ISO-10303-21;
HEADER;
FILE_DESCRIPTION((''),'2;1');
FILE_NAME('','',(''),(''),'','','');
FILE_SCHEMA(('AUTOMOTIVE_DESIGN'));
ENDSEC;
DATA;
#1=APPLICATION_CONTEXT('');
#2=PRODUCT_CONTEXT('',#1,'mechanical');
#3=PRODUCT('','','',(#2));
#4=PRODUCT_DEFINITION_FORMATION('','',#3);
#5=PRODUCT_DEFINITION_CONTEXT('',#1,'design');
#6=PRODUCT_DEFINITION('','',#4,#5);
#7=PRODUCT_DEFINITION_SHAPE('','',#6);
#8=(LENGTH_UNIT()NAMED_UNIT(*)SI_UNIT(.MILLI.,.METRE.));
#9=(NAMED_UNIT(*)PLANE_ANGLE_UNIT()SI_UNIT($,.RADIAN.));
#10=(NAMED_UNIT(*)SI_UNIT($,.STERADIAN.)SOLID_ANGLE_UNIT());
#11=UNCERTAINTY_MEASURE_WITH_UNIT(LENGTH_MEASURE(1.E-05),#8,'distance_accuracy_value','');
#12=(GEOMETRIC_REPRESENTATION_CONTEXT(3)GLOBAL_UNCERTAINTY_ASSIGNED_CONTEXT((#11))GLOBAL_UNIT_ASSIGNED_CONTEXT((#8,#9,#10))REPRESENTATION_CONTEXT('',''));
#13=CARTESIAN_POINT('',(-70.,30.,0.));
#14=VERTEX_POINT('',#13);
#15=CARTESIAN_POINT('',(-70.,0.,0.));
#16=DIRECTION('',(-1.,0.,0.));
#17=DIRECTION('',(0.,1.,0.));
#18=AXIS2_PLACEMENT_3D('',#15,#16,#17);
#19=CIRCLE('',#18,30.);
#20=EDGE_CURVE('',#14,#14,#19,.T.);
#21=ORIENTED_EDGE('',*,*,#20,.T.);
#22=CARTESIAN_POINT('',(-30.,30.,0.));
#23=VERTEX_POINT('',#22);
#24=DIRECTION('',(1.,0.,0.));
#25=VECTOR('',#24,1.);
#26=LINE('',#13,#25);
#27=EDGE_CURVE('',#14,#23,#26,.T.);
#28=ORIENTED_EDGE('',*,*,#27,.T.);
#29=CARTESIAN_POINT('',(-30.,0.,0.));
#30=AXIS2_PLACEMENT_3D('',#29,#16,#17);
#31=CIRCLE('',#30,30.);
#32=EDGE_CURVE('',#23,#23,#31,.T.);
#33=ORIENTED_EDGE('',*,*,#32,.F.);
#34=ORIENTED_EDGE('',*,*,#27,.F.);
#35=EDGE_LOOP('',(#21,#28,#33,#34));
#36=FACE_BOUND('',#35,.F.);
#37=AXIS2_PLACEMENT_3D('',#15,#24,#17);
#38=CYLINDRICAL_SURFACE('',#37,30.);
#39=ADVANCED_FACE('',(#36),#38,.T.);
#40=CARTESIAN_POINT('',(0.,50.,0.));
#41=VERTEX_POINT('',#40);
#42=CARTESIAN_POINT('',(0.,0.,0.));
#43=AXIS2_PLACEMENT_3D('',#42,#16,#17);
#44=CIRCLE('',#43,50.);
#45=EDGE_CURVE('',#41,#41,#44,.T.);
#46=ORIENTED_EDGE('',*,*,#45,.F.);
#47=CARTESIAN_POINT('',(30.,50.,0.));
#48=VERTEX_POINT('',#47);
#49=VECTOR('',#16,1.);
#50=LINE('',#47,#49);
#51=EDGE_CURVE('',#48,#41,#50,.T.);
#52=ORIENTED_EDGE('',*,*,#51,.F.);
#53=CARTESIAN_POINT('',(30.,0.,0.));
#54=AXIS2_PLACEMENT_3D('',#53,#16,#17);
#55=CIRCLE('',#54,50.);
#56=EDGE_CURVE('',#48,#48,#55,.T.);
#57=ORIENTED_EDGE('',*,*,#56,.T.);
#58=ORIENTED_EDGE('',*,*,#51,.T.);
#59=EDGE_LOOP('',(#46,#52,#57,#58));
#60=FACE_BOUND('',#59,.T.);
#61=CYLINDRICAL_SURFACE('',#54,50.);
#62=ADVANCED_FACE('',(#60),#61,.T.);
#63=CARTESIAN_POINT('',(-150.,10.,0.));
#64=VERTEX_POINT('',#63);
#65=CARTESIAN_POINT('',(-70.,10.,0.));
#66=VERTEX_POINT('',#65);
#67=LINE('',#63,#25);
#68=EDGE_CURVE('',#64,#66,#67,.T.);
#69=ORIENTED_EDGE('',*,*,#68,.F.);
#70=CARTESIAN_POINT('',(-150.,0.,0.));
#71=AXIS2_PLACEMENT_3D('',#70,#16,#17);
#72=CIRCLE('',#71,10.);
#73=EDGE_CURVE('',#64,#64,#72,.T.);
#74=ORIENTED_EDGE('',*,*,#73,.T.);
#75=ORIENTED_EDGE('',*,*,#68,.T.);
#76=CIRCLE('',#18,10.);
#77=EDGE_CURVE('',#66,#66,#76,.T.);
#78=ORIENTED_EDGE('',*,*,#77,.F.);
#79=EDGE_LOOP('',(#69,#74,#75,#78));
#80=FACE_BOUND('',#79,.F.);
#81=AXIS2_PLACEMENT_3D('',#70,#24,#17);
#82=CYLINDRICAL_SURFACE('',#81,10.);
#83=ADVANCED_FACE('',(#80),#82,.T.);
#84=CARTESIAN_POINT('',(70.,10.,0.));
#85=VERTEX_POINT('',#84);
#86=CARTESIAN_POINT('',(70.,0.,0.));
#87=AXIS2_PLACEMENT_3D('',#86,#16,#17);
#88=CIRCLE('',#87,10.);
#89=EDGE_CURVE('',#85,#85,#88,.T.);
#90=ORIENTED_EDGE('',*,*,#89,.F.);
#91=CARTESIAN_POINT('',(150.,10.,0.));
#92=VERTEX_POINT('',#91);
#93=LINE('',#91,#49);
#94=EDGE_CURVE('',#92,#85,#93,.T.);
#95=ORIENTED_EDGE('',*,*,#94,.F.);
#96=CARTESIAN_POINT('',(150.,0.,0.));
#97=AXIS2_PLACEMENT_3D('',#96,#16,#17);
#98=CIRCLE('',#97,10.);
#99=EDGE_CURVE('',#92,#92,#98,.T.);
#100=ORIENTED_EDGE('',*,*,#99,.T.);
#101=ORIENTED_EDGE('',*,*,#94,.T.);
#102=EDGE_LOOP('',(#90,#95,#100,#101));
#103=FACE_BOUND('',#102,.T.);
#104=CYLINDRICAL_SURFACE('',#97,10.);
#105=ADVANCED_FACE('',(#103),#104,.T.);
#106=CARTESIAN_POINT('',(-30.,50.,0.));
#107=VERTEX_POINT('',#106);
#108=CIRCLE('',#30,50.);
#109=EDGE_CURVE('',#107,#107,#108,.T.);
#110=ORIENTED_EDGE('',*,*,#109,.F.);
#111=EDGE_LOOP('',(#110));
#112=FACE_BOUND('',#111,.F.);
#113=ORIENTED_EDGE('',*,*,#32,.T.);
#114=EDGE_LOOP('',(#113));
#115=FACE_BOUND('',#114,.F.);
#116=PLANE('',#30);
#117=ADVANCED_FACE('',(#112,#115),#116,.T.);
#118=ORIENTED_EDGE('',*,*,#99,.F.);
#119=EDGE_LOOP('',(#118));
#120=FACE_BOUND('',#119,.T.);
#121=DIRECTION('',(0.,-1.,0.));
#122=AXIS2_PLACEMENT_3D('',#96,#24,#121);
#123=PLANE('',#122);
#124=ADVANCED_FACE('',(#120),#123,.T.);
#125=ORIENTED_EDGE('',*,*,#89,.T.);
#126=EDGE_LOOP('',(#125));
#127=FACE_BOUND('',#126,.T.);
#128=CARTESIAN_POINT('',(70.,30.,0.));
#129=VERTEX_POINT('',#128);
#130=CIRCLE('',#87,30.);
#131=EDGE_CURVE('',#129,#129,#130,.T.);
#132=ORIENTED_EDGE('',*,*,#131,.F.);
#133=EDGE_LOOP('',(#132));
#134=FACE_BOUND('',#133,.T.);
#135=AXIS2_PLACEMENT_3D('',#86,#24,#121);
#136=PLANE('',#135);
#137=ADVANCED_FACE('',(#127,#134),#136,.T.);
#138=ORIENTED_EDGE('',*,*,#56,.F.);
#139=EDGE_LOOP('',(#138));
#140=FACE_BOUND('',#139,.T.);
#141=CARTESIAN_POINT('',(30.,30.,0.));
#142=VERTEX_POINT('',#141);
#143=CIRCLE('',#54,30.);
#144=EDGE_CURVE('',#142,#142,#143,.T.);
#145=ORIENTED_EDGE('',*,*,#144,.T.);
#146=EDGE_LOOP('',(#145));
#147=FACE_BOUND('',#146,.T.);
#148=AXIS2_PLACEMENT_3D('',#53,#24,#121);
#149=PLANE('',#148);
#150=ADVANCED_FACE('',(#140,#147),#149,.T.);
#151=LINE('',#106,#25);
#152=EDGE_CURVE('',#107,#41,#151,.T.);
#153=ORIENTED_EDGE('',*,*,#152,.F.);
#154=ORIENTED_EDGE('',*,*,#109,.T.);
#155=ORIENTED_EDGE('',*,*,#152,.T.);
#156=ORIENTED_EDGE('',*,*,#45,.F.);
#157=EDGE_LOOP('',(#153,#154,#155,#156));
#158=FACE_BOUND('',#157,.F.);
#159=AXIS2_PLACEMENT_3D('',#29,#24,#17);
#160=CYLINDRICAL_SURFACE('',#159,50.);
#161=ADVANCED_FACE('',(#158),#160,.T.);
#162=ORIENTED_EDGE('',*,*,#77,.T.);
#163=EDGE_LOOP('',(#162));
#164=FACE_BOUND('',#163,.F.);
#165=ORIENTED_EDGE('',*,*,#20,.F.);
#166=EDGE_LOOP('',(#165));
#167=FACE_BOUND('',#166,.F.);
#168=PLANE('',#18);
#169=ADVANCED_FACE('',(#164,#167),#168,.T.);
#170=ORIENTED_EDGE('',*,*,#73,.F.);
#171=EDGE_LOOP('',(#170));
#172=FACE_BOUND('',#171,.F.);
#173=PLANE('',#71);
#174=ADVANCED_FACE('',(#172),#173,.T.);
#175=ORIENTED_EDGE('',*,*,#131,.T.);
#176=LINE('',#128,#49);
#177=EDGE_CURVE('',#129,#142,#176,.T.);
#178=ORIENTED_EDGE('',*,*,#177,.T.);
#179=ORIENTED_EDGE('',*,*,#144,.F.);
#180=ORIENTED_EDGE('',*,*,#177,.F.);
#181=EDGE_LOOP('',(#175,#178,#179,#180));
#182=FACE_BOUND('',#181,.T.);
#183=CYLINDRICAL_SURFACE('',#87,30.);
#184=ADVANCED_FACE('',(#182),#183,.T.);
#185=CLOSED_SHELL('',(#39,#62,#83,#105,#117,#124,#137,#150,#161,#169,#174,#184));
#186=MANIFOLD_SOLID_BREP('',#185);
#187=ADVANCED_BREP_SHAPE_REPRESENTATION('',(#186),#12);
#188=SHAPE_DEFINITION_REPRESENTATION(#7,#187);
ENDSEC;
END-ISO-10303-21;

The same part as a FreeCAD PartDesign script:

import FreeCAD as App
import Part
import Sketcher
from FreeCAD import Vector


def add_polygon(sketch, points):
    """Adds a closed chain of lines whose ends are joined by coincident constraints."""
    first, n = sketch.GeometryCount, len(points)
    for a, b in zip(points, points[1:] + points[:1]):
        sketch.addGeometry(Part.LineSegment(App.Vector(*a, 0), App.Vector(*b, 0)), False)
    for i in range(n):
        sketch.addConstraint(Sketcher.Constraint("Coincident", first + i, 2, first + (i + 1) % n, 1))

doc = App.newDocument("Part")
body = doc.addObject("PartDesign::Body", "Body")

# Sketch on XY plane
sketch1 = doc.addObject("Sketcher::SketchObject", "Sketch")
body.addObject(sketch1)
sketch1.AttachmentSupport = (doc.XY_Plane, [""])
sketch1.MapMode = "FlatFace"
add_polygon(sketch1, [(0, 0), (0, 50), (-30, 50), (-30, 30), (-70, 30), (-70, 10), (-150, 10), (-150, 0)])  # lines 0-7
sketch1.addConstraint(Sketcher.Constraint("Vertical", 0))
sketch1.addConstraint(Sketcher.Constraint("Horizontal", 1))
sketch1.addConstraint(Sketcher.Constraint("Vertical", 2))
sketch1.addConstraint(Sketcher.Constraint("Horizontal", 3))
sketch1.addConstraint(Sketcher.Constraint("Vertical", 4))
sketch1.addConstraint(Sketcher.Constraint("Horizontal", 5))
sketch1.addConstraint(Sketcher.Constraint("Vertical", 6))
sketch1.addConstraint(Sketcher.Constraint("Horizontal", 7))
sketch1.addConstraint(Sketcher.Constraint("Coincident", 7, 2, -1, 1))
sketch1.addConstraint(Sketcher.Constraint("Equal", 2, 4))
sketch1.addConstraint(Sketcher.Constraint("DistanceX", 1, 2, 1, 1, 30.0))
sketch1.addConstraint(Sketcher.Constraint("DistanceX", 3, 2, 3, 1, 40.0))
sketch1.addConstraint(Sketcher.Constraint("DistanceX", 5, 2, 5, 1, 80.0))
sketch1.addConstraint(Sketcher.Constraint("DistanceY", 0, 1, 0, 2, 50.0))
sketch1.addConstraint(Sketcher.Constraint("DistanceY", 6, 2, 6, 1, 10.0))
revolution = doc.addObject("PartDesign::Revolution", "Revolution")
body.addObject(revolution)
revolution.Profile = sketch1
revolution.ReferenceAxis = (sketch1, ["H_Axis"])
revolution.Angle = 360
doc.recompute()

mirrored = doc.addObject("PartDesign::Mirrored", "Mirrored")
body.addObject(mirrored)
mirrored.Originals = [revolution]
mirrored.MirrorPlane = (doc.YZ_Plane, [""])
body.Tip = mirrored

doc.recompute()
